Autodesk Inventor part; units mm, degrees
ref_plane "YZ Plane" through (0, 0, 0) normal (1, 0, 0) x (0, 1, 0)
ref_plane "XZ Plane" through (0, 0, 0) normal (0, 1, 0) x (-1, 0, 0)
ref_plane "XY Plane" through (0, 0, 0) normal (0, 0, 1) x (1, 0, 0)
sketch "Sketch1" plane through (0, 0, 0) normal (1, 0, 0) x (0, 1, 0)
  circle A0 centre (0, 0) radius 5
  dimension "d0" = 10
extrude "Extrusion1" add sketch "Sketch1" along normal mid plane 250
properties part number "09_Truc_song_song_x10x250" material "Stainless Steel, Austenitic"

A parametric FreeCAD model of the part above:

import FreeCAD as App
import Part
import Sketcher
from FreeCAD import Vector
Q = App.Units.Quantity

doc = App.newDocument("Part")
body = doc.addObject("PartDesign::Body", "Body")

# Sketch on YZ plane
sketch1 = body.newObject("Sketcher::SketchObject", "Sketch")
sketch1.AttachmentSupport = (doc.getObject("YZ_Plane"), [""])
sketch1.MapMode = "FlatFace"
sketch1.addGeometry(Part.Circle(Vector(0, 0, 0), Vector(0, 0, 1), 5), False)
sketch1.addConstraint([
    Sketcher.Constraint("Coincident", 0, 3, -1, 1),
    Sketcher.Constraint("Diameter", 0, Q("10 mm")),
])
pad1 = body.newObject("PartDesign::Pad", "Pad")
pad1.Profile = sketch1
pad1.Length = 250
pad1.Midplane = True

doc.recompute()
